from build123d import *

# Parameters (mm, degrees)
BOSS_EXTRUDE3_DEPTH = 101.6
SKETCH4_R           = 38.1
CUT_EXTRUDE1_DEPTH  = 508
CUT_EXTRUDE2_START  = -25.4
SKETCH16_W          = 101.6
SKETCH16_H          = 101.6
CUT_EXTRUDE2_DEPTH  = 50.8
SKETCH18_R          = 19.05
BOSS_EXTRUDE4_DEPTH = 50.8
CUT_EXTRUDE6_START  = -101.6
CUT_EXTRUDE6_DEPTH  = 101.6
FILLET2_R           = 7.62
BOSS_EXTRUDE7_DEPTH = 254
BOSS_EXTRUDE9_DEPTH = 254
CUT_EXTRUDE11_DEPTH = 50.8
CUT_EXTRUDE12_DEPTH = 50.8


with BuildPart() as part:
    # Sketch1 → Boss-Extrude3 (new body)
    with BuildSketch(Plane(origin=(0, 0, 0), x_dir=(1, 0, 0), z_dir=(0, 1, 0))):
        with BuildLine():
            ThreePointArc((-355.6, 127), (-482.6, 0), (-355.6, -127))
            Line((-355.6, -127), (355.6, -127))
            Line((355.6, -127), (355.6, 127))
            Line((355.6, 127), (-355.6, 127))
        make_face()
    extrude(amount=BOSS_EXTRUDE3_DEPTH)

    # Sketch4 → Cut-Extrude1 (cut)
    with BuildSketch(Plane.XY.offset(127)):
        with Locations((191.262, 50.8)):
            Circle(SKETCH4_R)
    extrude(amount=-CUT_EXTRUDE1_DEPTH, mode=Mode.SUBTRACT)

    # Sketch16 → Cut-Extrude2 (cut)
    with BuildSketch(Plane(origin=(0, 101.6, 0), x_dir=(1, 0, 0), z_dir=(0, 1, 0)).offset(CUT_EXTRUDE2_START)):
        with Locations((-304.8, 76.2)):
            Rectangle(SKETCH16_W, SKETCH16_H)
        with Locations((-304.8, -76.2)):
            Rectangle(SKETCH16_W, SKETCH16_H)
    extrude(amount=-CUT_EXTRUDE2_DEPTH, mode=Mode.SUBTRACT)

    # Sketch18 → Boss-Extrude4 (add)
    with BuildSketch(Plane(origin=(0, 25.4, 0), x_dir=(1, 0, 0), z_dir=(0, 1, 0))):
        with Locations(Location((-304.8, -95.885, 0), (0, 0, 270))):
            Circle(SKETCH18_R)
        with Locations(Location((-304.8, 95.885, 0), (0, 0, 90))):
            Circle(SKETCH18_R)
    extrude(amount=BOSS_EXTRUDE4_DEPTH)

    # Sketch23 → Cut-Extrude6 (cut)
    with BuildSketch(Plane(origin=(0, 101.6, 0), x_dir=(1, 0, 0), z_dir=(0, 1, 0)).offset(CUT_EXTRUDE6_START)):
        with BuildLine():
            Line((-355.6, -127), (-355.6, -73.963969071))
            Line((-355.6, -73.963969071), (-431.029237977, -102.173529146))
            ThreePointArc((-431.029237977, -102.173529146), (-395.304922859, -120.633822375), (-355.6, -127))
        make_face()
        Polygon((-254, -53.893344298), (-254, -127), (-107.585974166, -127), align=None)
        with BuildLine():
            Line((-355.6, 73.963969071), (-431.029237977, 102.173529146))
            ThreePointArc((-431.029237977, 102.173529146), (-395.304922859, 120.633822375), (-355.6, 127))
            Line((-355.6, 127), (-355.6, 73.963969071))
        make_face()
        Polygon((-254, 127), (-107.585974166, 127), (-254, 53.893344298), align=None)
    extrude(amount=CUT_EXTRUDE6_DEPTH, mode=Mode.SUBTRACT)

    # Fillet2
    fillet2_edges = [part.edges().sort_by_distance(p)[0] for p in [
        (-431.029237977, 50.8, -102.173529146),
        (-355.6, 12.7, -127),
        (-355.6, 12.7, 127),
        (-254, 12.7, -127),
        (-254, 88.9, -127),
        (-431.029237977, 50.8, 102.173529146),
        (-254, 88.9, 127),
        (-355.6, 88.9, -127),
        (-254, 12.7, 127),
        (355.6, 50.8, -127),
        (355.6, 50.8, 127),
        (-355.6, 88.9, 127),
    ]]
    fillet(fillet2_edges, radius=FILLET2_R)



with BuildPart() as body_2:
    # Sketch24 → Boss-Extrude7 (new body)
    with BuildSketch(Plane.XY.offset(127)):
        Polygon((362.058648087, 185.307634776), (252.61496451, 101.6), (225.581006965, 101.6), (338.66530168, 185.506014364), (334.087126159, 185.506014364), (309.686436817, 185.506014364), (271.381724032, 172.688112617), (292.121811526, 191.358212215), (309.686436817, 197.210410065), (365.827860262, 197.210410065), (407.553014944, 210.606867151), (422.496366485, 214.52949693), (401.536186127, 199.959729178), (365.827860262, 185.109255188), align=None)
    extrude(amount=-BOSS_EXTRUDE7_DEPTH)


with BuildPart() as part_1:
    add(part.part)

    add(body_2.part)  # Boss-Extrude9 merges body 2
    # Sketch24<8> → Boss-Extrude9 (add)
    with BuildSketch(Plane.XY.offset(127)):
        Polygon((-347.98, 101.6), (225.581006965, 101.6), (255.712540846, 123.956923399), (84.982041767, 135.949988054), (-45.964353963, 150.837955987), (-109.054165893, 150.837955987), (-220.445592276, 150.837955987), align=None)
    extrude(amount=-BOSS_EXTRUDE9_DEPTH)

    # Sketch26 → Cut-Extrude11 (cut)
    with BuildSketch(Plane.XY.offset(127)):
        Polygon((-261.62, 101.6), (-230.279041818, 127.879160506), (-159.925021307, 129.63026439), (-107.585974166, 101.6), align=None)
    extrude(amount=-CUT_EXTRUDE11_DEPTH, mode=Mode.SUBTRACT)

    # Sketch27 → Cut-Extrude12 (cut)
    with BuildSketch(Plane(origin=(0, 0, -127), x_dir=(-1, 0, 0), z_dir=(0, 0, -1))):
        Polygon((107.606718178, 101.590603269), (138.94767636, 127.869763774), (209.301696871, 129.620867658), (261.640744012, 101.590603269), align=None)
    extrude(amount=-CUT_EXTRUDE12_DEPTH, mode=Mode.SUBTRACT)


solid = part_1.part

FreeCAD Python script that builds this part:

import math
import FreeCAD as App
import Part
import Sketcher

V = App.Vector
Q = App.Units.Quantity


def edges_at(feature, points):
    """Names of the edges that pass closest to the given points."""
    edges = feature.Shape.Edges
    near = lambda p: min(range(len(edges)), key=lambda i: edges[i].distToShape(Part.Vertex(*p))[0])
    return sorted({f"Edge{near(p) + 1}" for p in points})

doc = App.newDocument("Part")
body = doc.addObject("PartDesign::Body", "Body")

# Sketch on XZ plane
sketch1 = body.newObject("Sketcher::SketchObject", "Sketch")
sketch1.AttachmentSupport = (doc.getObject("XZ_Plane"), [""])
sketch1.MapMode = "FlatFace"
sketch1.addGeometry(Part.ArcOfCircle(Part.Circle(V(-356, 0, 0), V(0, 0, 1), 127), math.radians(90), math.radians(270)), False)
sketch1.addGeometry(Part.LineSegment(V(-356, 127, 0), V(356, 127, 0)), False)
sketch1.addGeometry(Part.LineSegment(V(356, 127, 0), V(356, -127, 0)), False)
sketch1.addGeometry(Part.LineSegment(V(356, -127, 0), V(-356, -127, 0)), False)
sketch1.addConstraint(Sketcher.Constraint("Tangent", 0, 1, 1, 1))
sketch1.addConstraint(Sketcher.Constraint("Coincident", 1, 2, 2, 1))
sketch1.addConstraint(Sketcher.Constraint("Coincident", 2, 2, 3, 1))
sketch1.addConstraint(Sketcher.Constraint("Tangent", 3, 2, 0, 2))
sketch1.addConstraint(Sketcher.Constraint("Horizontal", 1))
sketch1.addConstraint(Sketcher.Constraint("Vertical", 2))
sketch1.addConstraint(Sketcher.Constraint("Horizontal", 3))
sketch1.addConstraint(Sketcher.Constraint("Symmetric", 0, 1, 2, 2, -1, 1))
sketch1.addConstraint(Sketcher.Constraint("Radius", 0, Q("5 in")))
sketch1.addConstraint(Sketcher.Constraint("DistanceX", 1, 1, 1, 2, Q("28 in")))
pad1 = body.newObject("PartDesign::Pad", "Pad")
pad1.Profile = sketch1
pad1.Length = Q("4 in")
pad1.Reversed = True

# Sketch on XY plane
sketch2 = body.newObject("Sketcher::SketchObject", "Sketch001")
sketch2.AttachmentSupport = (doc.getObject("XY_Plane"), [""])
sketch2.MapMode = "FlatFace"
sketch2.AttachmentOffset = App.Placement(V(0, 0, 5 * 25.4), App.Rotation())
sketch2.addGeometry(Part.Circle(V(191, 51, 0), V(0, 0, 1), 38), False)
sketch2.addConstraint(Sketcher.Constraint("Diameter", 0, Q("3 in")))
sketch2.addConstraint(Sketcher.Constraint("DistanceY", -1, 1, 0, 3, Q("2 in")))
sketch2.addConstraint(Sketcher.Constraint("DistanceX", -1, 1, 0, 3, Q("7.53 in")))
pocket1 = body.newObject("PartDesign::Pocket", "Pocket")
pocket1.Profile = sketch2
pocket1.Length = Q("20 in")

# Sketch on XZ plane
sketch3 = body.newObject("Sketcher::SketchObject", "Sketch002")
sketch3.AttachmentSupport = (doc.getObject("XZ_Plane"), [""])
sketch3.MapMode = "FlatFace"
sketch3.AttachmentOffset = App.Placement(V(0, 0, -3 * 25.4), App.Rotation())
sketch3.addGeometry(Part.LineSegment(V(-356, -127, 0), V(-356, -25, 0)), False)
sketch3.addGeometry(Part.LineSegment(V(-356, -25, 0), V(-254, -25, 0)), False)
sketch3.addGeometry(Part.LineSegment(V(-254, -25, 0), V(-254, -127, 0)), False)
sketch3.addGeometry(Part.LineSegment(V(-254, -127, 0), V(-356, -127, 0)), False)
sketch3.addGeometry(Part.LineSegment(V(-356, 25, 0), V(-356, 127, 0)), False)
sketch3.addGeometry(Part.LineSegment(V(-356, 127, 0), V(-254, 127, 0)), False)
sketch3.addGeometry(Part.LineSegment(V(-254, 127, 0), V(-254, 25, 0)), False)
sketch3.addGeometry(Part.LineSegment(V(-254, 25, 0), V(-356, 25, 0)), False)
sketch3.addConstraint(Sketcher.Constraint("Coincident", 0, 2, 1, 1))
sketch3.addConstraint(Sketcher.Constraint("Coincident", 1, 2, 2, 1))
sketch3.addConstraint(Sketcher.Constraint("Coincident", 2, 2, 3, 1))
sketch3.addConstraint(Sketcher.Constraint("Coincident", 3, 2, 0, 1))
sketch3.addConstraint(Sketcher.Constraint("Coincident", 4, 2, 5, 1))
sketch3.addConstraint(Sketcher.Constraint("Coincident", 5, 2, 6, 1))
sketch3.addConstraint(Sketcher.Constraint("Coincident", 6, 2, 7, 1))
sketch3.addConstraint(Sketcher.Constraint("Coincident", 7, 2, 4, 1))
sketch3.addConstraint(Sketcher.Constraint("Vertical", 0))
sketch3.addConstraint(Sketcher.Constraint("Horizontal", 1))
sketch3.addConstraint(Sketcher.Constraint("Vertical", 2))
sketch3.addConstraint(Sketcher.Constraint("Horizontal", 3))
sketch3.addConstraint(Sketcher.Constraint("Vertical", 4))
sketch3.addConstraint(Sketcher.Constraint("Horizontal", 5))
sketch3.addConstraint(Sketcher.Constraint("Vertical", 6))
sketch3.addConstraint(Sketcher.Constraint("Horizontal", 7))
sketch3.addConstraint(Sketcher.Constraint("Symmetric", 3, 2, 4, 2, -1))
sketch3.addConstraint(Sketcher.Constraint("Symmetric", 1, 2, 6, 2, -1))
sketch3.addConstraint(Sketcher.Constraint("Equal", 7, 0))
sketch3.addConstraint(Sketcher.Constraint("DistanceX", 1, 1, 1, 2, Q("4 in")))
sketch3.addConstraint(Sketcher.Constraint("DistanceX", 0, 2, -1, 1, Q("14 in")))
sketch3.addConstraint(Sketcher.Constraint("DistanceY", 0, 2, -1, 1, Q("1 in")))
pocket2 = body.newObject("PartDesign::Pocket", "Pocket001")
pocket2.Profile = sketch3
pocket2.Length = Q("2 in")
pocket2.Reversed = True

# Sketch on XZ plane
sketch4 = body.newObject("Sketcher::SketchObject", "Sketch003")
sketch4.AttachmentSupport = (doc.getObject("XZ_Plane"), [""])
sketch4.MapMode = "FlatFace"
sketch4.AttachmentOffset = App.Placement(V(0, 0, -1 * 25.4), App.Rotation())
sketch4.addGeometry(Part.Circle(V(-305, 96, 0), V(0, 0, 1), 19), False)
sketch4.addGeometry(Part.Circle(V(-305, -96, 0), V(0, 0, 1), 19), False)
sketch4.addConstraint(Sketcher.Constraint("Equal", 0, 1))
sketch4.addConstraint(Sketcher.Constraint("Symmetric", 0, 3, 1, 3, -1))
sketch4.addConstraint(Sketcher.Constraint("Diameter", 0, Q("1.5 in")))
sketch4.addConstraint(Sketcher.Constraint("DistanceX", 0, 3, -1, 1, Q("12 in")))
sketch4.addConstraint(Sketcher.Constraint("DistanceY", 1, 3, 0, 3, Q("7.55 in")))
pad2 = body.newObject("PartDesign::Pad", "Pad001")
pad2.Profile = sketch4
pad2.Length = Q("2 in")
pad2.Reversed = True

# Sketch on XZ plane
sketch5 = body.newObject("Sketcher::SketchObject", "Sketch004")
sketch5.AttachmentSupport = (doc.getObject("XZ_Plane"), [""])
sketch5.MapMode = "FlatFace"
sketch5.addGeometry(Part.LineSegment(V(-356, 127, 0), V(-356, 74, 0)), False)
sketch5.addGeometry(Part.LineSegment(V(-356, 74, 0), V(-431, 102, 0)), False)
sketch5.addGeometry(Part.ArcOfCircle(Part.Circle(V(-356, 0, 0), V(0, 0, 1), 127), math.radians(90), math.radians(126)), False)
sketch5.addGeometry(Part.LineSegment(V(-254, 54, 0), V(-254, 127, 0)), False)
sketch5.addGeometry(Part.LineSegment(V(-254, 127, 0), V(-108, 127, 0)), False)
sketch5.addGeometry(Part.LineSegment(V(-108, 127, 0), V(-254, 54, 0)), False)
sketch5.addGeometry(Part.LineSegment(V(-431, -102, 0), V(-356, -74, 0)), False)
sketch5.addGeometry(Part.LineSegment(V(-356, -74, 0), V(-356, -127, 0)), False)
sketch5.addGeometry(Part.ArcOfCircle(Part.Circle(V(-356, 0, 0), V(0, 0, 1), 127), math.radians(-126), math.radians(-90)), False)
sketch5.addGeometry(Part.LineSegment(V(-108, -127, 0), V(-254, -127, 0)), False)
sketch5.addGeometry(Part.LineSegment(V(-254, -127, 0), V(-254, -54, 0)), False)
sketch5.addGeometry(Part.LineSegment(V(-254, -54, 0), V(-108, -127, 0)), False)
sketch5.addConstraint(Sketcher.Constraint("Coincident", 0, 2, 1, 1))
sketch5.addConstraint(Sketcher.Constraint("Coincident", 1, 2, 2, 2))
sketch5.addConstraint(Sketcher.Constraint("Coincident", 2, 1, 0, 1))
sketch5.addConstraint(Sketcher.Constraint("Coincident", 3, 2, 4, 1))
sketch5.addConstraint(Sketcher.Constraint("Coincident", 4, 2, 5, 1))
sketch5.addConstraint(Sketcher.Constraint("Coincident", 5, 2, 3, 1))
sketch5.addConstraint(Sketcher.Constraint("Coincident", 6, 2, 7, 1))
sketch5.addConstraint(Sketcher.Constraint("Coincident", 7, 2, 8, 2))
sketch5.addConstraint(Sketcher.Constraint("Coincident", 8, 1, 6, 1))
sketch5.addConstraint(Sketcher.Constraint("Coincident", 9, 2, 10, 1))
sketch5.addConstraint(Sketcher.Constraint("Coincident", 10, 2, 11, 1))
sketch5.addConstraint(Sketcher.Constraint("Coincident", 11, 2, 9, 1))
sketch5.addConstraint(Sketcher.Constraint("Vertical", 0))
sketch5.addConstraint(Sketcher.Constraint("Vertical", 3))
sketch5.addConstraint(Sketcher.Constraint("Horizontal", 4))
sketch5.addConstraint(Sketcher.Constraint("Vertical", 7))
sketch5.addConstraint(Sketcher.Constraint("Horizontal", 9))
sketch5.addConstraint(Sketcher.Constraint("Vertical", 10))
sketch5.addConstraint(Sketcher.Constraint("Coincident", 8, 3, 2, 3))
sketch5.addConstraint(Sketcher.Constraint("Equal", 2, 8))
sketch5.addConstraint(Sketcher.Constraint("Symmetric", 0, 2, 6, 2, -1))
sketch5.addConstraint(Sketcher.Constraint("Symmetric", 1, 2, 8, 1, -1))
sketch5.addConstraint(Sketcher.Constraint("Symmetric", 3, 2, 9, 2, -1))
sketch5.addConstraint(Sketcher.Constraint("Horizontal", 2, 1, 3, 2))
sketch5.addConstraint(Sketcher.Constraint("Vertical", 8, 3, 0, 2))
sketch5.addConstraint(Sketcher.Constraint("Vertical", 4, 2, 11, 2))
sketch5.addConstraint(Sketcher.Constraint("Equal", 3, 10))
sketch5.addConstraint(Sketcher.Constraint("Radius", 2, Q("5 in")))
sketch5.addConstraint(Sketcher.Constraint("DistanceX", 2, 3, -1, 1, Q("14 in")))
sketch5.addConstraint(Sketcher.Constraint("DistanceX", 3, 2, -1, 1, Q("10 in")))
sketch5.addConstraint(Sketcher.Constraint("Distance", 5, 163.651001))
sketch5.addConstraint(Sketcher.Constraint("DistanceY", 0, 2, 0, 1, 53.036031))
sketch5.addConstraint(Sketcher.Constraint("DistanceY", 6, 2, 1, 2, 176.137498))
sketch5.addConstraint(Sketcher.Constraint("DistanceX", 4, 1, 4, 2, 146.414026))
pocket3 = body.newObject("PartDesign::Pocket", "Pocket002")
pocket3.Profile = sketch5
pocket3.Length = Q("4 in")
doc.recompute()

fillet = body.newObject("PartDesign::Fillet", "Fillet")
fillet.Base = (pocket3, edges_at(pocket3, [
    (-431.029, 50.8, -102.174),
    (-355.6, 12.7, -127),
    (-355.6, 12.7, 127),
    (-254, 12.7, -127),
    (-254, 88.9, -127),
    (-431.029, 50.8, 102.174),
    (-254, 88.9, 127),
    (-355.6, 88.9, -127),
    (-254, 12.7, 127),
    (355.6, 50.8, -127),
    (355.6, 50.8, 127),
    (-355.6, 88.9, 127),
]))
fillet.Radius = Q("0.3 in")
body2 = doc.addObject("PartDesign::Body", "Body001")

# Sketch on XY plane
sketch6 = body2.newObject("Sketcher::SketchObject", "Sketch005")
sketch6.AttachmentSupport = (doc.getObject("XY_Plane001"), [""])
sketch6.MapMode = "FlatFace"
sketch6.AttachmentOffset = App.Placement(V(0, 0, 5 * 25.4), App.Rotation())
sketch6.addGeometry(Part.LineSegment(V(252.6, 101.6, 0), V(362.1, 185.3, 0)), False)
sketch6.addGeometry(Part.LineSegment(V(362.1, 185.3, 0), V(365.8, 185.1, 0)), False)
sketch6.addGeometry(Part.LineSegment(V(365.8, 185.1, 0), V(401.5, 200, 0)), False)
sketch6.addGeometry(Part.LineSegment(V(401.5, 200, 0), V(422.5, 214.5, 0)), False)
sketch6.addGeometry(Part.LineSegment(V(422.5, 214.5, 0), V(407.6, 210.6, 0)), False)
sketch6.addGeometry(Part.LineSegment(V(407.6, 210.6, 0), V(365.8, 197.2, 0)), False)
sketch6.addGeometry(Part.LineSegment(V(365.8, 197.2, 0), V(309.7, 197.2, 0)), False)
sketch6.addGeometry(Part.LineSegment(V(309.7, 197.2, 0), V(292.1, 191.4, 0)), False)
sketch6.addGeometry(Part.LineSegment(V(292.1, 191.4, 0), V(271.4, 172.7, 0)), False)
sketch6.addGeometry(Part.LineSegment(V(271.4, 172.7, 0), V(309.7, 185.5, 0)), False)
sketch6.addGeometry(Part.LineSegment(V(309.7, 185.5, 0), V(338.7, 185.5, 0)), False)
sketch6.addGeometry(Part.LineSegment(V(338.7, 185.5, 0), V(225.6, 101.6, 0)), False)
sketch6.addGeometry(Part.LineSegment(V(225.6, 101.6, 0), V(252.6, 101.6, 0)), False)
sketch6.addConstraint(Sketcher.Constraint("Coincident", 0, 2, 1, 1))
sketch6.addConstraint(Sketcher.Constraint("Coincident", 1, 2, 2, 1))
sketch6.addConstraint(Sketcher.Constraint("Coincident", 2, 2, 3, 1))
sketch6.addConstraint(Sketcher.Constraint("Coincident", 3, 2, 4, 1))
sketch6.addConstraint(Sketcher.Constraint("Coincident", 4, 2, 5, 1))
sketch6.addConstraint(Sketcher.Constraint("Coincident", 5, 2, 6, 1))
sketch6.addConstraint(Sketcher.Constraint("Coincident", 6, 2, 7, 1))
sketch6.addConstraint(Sketcher.Constraint("Coincident", 7, 2, 8, 1))
sketch6.addConstraint(Sketcher.Constraint("Coincident", 8, 2, 9, 1))
sketch6.addConstraint(Sketcher.Constraint("Coincident", 9, 2, 10, 1))
sketch6.addConstraint(Sketcher.Constraint("Coincident", 10, 2, 11, 1))
sketch6.addConstraint(Sketcher.Constraint("Coincident", 11, 2, 12, 1))
sketch6.addConstraint(Sketcher.Constraint("Coincident", 12, 2, 0, 1))
sketch6.addConstraint(Sketcher.Constraint("Horizontal", 6))
sketch6.addConstraint(Sketcher.Constraint("Horizontal", 10))
sketch6.addConstraint(Sketcher.Constraint("Horizontal", 12))
sketch6.addConstraint(Sketcher.Constraint("Vertical", 1, 2, 5, 2))
sketch6.addConstraint(Sketcher.Constraint("Vertical", 6, 2, 9, 2))
sketch6.addConstraint(Sketcher.Constraint("DistanceY", -1, 1, 11, 2, Q("4 in")))
sketch6.addConstraint(Sketcher.Constraint("DistanceX", 10, 1, 10, 2, Q("1.1409002 in")))
sketch6.addConstraint(Sketcher.Constraint("Distance", 3, 25.5266))
sketch6.addConstraint(Sketcher.Constraint("DistanceX", -1, 1, 10, 2, 338.665302))
sketch6.addConstraint(Sketcher.Constraint("DistanceY", 8, 2, 7, 2, 18.6701))
sketch6.addConstraint(Sketcher.Constraint("DistanceY", 8, 2, 9, 2, 12.817902))
sketch6.addConstraint(Sketcher.Constraint("Distance", 0, 137.78566))
sketch6.addConstraint(Sketcher.Constraint("Distance", 1, 3.774429))
sketch6.addConstraint(Sketcher.Constraint("Distance", 2, 38.673261))
sketch6.addConstraint(Sketcher.Constraint("Distance", 4, 15.449621))
sketch6.addConstraint(Sketcher.Constraint("Distance", 5, 43.82298))
sketch6.addConstraint(Sketcher.Constraint("DistanceX", 6, 2, 6, 1, 56.141423))
sketch6.addConstraint(Sketcher.Constraint("DistanceX", 12, 1, 12, 2, 27.033958))
sketch6.addConstraint(Sketcher.Constraint("DistanceX", -1, 1, 0, 2, 362.058648))
sketch6.addConstraint(Sketcher.Constraint("DistanceY", -1, 1, 2, 2, 199.959729))
sketch6.addConstraint(Sketcher.Constraint("DistanceY", -1, 1, 5, 2, 197.21041))
sketch6.addConstraint(Sketcher.Constraint("DistanceX", -1, 1, 7, 2, 292.121812))
sketch6.addConstraint(Sketcher.Constraint("DistanceX", 0, 2, 2, 2, 39.477538))
sketch6.addConstraint(Sketcher.Constraint("DistanceX", 2, 2, 3, 2, 20.96018))
sketch6.addConstraint(Sketcher.Constraint("DistanceY", 0, 2, 9, 2, 0.19838))
sketch6.addConstraint(Sketcher.Constraint("DistanceX", 12, 2, 8, 2, 18.76676))
pad3 = body2.newObject("PartDesign::Pad", "Pad002")
pad3.Profile = sketch6
pad3.Length = Q("10 in")
pad3.Reversed = True
doc.recompute()

boolean = body.newObject("PartDesign::Boolean", "Boolean")
boolean.Type = "Fuse"
boolean.addObjects([body2])

# Sketch on XY plane
sketch7 = body.newObject("Sketcher::SketchObject", "Sketch006")
sketch7.AttachmentSupport = (doc.getObject("XY_Plane"), [""])
sketch7.MapMode = "FlatFace"
sketch7.AttachmentOffset = App.Placement(V(0, 0, 5 * 25.4), App.Rotation())
sketch7.addGeometry(Part.LineSegment(V(-348, 102, 0), V(226, 102, 0)), False)
sketch7.addGeometry(Part.LineSegment(V(226, 102, 0), V(256, 124, 0)), False)
sketch7.addGeometry(Part.LineSegment(V(256, 124, 0), V(85, 136, 0)), False)
sketch7.addGeometry(Part.LineSegment(V(85, 136, 0), V(-46, 151, 0)), False)
sketch7.addGeometry(Part.LineSegment(V(-46, 151, 0), V(-220, 151, 0)), False)
sketch7.addGeometry(Part.LineSegment(V(-220, 151, 0), V(-348, 102, 0)), False)
sketch7.addConstraint(Sketcher.Constraint("Coincident", 0, 2, 1, 1))
sketch7.addConstraint(Sketcher.Constraint("Coincident", 1, 2, 2, 1))
sketch7.addConstraint(Sketcher.Constraint("Coincident", 2, 2, 3, 1))
sketch7.addConstraint(Sketcher.Constraint("Coincident", 3, 2, 4, 1))
sketch7.addConstraint(Sketcher.Constraint("Coincident", 4, 2, 5, 1))
sketch7.addConstraint(Sketcher.Constraint("Coincident", 5, 2, 0, 1))
sketch7.addConstraint(Sketcher.Constraint("Horizontal", 0))
sketch7.addConstraint(Sketcher.Constraint("Horizontal", 4))
sketch7.addConstraint(Sketcher.Constraint("DistanceY", -1, 1, 0, 2, Q("4 in")))
sketch7.addConstraint(Sketcher.Constraint("DistanceX", 5, 2, -1, 1, Q("13.7 in")))
sketch7.addConstraint(Sketcher.Constraint("DistanceX", 4, 2, 4, 1, 174.481238))
sketch7.addConstraint(Sketcher.Constraint("DistanceX", 2, 2, 1, 2, 170.730499))
sketch7.addConstraint(Sketcher.Constraint("DistanceX", 4, 2, 0, 2, 446.026599))
sketch7.addConstraint(Sketcher.Constraint("Distance", 1, 37.51988))
sketch7.addConstraint(Sketcher.Constraint("Distance", 2, 171.151211))
sketch7.addConstraint(Sketcher.Constraint("DistanceX", 0, 1, 0, 2, 573.561007))
sketch7.addConstraint(Sketcher.Constraint("DistanceX", -1, 1, 1, 2, 255.712541))
sketch7.addConstraint(Sketcher.Constraint("Distance", 3, 131.790023))
pad4 = body.newObject("PartDesign::Pad", "Pad003")
pad4.Profile = sketch7
pad4.Length = Q("10 in")
pad4.Reversed = True

# Sketch on XY plane
sketch8 = body.newObject("Sketcher::SketchObject", "Sketch007")
sketch8.AttachmentSupport = (doc.getObject("XY_Plane"), [""])
sketch8.MapMode = "FlatFace"
sketch8.AttachmentOffset = App.Placement(V(0, 0, 5 * 25.4), App.Rotation())
sketch8.addGeometry(Part.LineSegment(V(-230, 128, 0), V(-262, 102, 0)), False)
sketch8.addGeometry(Part.LineSegment(V(-262, 102, 0), V(-108, 102, 0)), False)
sketch8.addGeometry(Part.LineSegment(V(-108, 102, 0), V(-160, 130, 0)), False)
sketch8.addGeometry(Part.LineSegment(V(-160, 130, 0), V(-230, 128, 0)), False)
sketch8.addConstraint(Sketcher.Constraint("Coincident", 0, 2, 1, 1))
sketch8.addConstraint(Sketcher.Constraint("Coincident", 1, 2, 2, 1))
sketch8.addConstraint(Sketcher.Constraint("Coincident", 2, 2, 3, 1))
sketch8.addConstraint(Sketcher.Constraint("Coincident", 3, 2, 0, 1))
sketch8.addConstraint(Sketcher.Constraint("Horizontal", 1))
sketch8.addConstraint(Sketcher.Constraint("DistanceY", -1, 1, 0, 2, Q("4 in")))
sketch8.addConstraint(Sketcher.Constraint("DistanceX", 0, 2, -1, 1, Q("10.3 in")))
sketch8.addConstraint(Sketcher.Constraint("Distance", 0, 40.900488))
sketch8.addConstraint(Sketcher.Constraint("Distance", 3, 70.37581))
sketch8.addConstraint(Sketcher.Constraint("DistanceX", 1, 1, 1, 2, 154.034026))
sketch8.addConstraint(Sketcher.Constraint("DistanceX", 2, 2, -1, 1, 159.925021))
sketch8.addConstraint(Sketcher.Constraint("DistanceX", 3, 2, -1, 1, 230.279042))
pocket4 = body.newObject("PartDesign::Pocket", "Pocket003")
pocket4.Profile = sketch8
pocket4.Length = Q("2 in")

# Sketch on XY plane
sketch9 = body.newObject("Sketcher::SketchObject", "Sketch008")
sketch9.AttachmentSupport = (doc.getObject("XY_Plane"), [""])
sketch9.MapMode = "FlatFace"
sketch9.AttachmentOffset = App.Placement(V(0, 0, -5 * 25.4), App.Rotation())
sketch9.addGeometry(Part.LineSegment(V(-139, 128, 0), V(-108, 102, 0)), False)
sketch9.addGeometry(Part.LineSegment(V(-108, 102, 0), V(-262, 102, 0)), False)
sketch9.addGeometry(Part.LineSegment(V(-262, 102, 0), V(-209, 130, 0)), False)
sketch9.addGeometry(Part.LineSegment(V(-209, 130, 0), V(-139, 128, 0)), False)
sketch9.addConstraint(Sketcher.Constraint("Coincident", 0, 2, 1, 1))
sketch9.addConstraint(Sketcher.Constraint("Coincident", 1, 2, 2, 1))
sketch9.addConstraint(Sketcher.Constraint("Coincident", 2, 2, 3, 1))
sketch9.addConstraint(Sketcher.Constraint("Coincident", 3, 2, 0, 1))
sketch9.addConstraint(Sketcher.Constraint("Horizontal", 1))
sketch9.addConstraint(Sketcher.Constraint("Distance", 0, 40.900488))
sketch9.addConstraint(Sketcher.Constraint("Distance", 3, 70.37581))
sketch9.addConstraint(Sketcher.Constraint("DistanceX", 1, 2, 1, 1, 154.034026))
sketch9.addConstraint(Sketcher.Constraint("DistanceX", 0, 2, -1, 1, 107.606718))
sketch9.addConstraint(Sketcher.Constraint("DistanceX", 2, 2, 0, 2, 101.694979))
sketch9.addConstraint(Sketcher.Constraint("DistanceX", 3, 2, 0, 2, 31.340958))
sketch9.addConstraint(Sketcher.Constraint("DistanceY", -1, 1, 0, 2, 101.590603))
pocket5 = body.newObject("PartDesign::Pocket", "Pocket004")
pocket5.Profile = sketch9
pocket5.Length = Q("2 in")
pocket5.Reversed = True

doc.recompute()
